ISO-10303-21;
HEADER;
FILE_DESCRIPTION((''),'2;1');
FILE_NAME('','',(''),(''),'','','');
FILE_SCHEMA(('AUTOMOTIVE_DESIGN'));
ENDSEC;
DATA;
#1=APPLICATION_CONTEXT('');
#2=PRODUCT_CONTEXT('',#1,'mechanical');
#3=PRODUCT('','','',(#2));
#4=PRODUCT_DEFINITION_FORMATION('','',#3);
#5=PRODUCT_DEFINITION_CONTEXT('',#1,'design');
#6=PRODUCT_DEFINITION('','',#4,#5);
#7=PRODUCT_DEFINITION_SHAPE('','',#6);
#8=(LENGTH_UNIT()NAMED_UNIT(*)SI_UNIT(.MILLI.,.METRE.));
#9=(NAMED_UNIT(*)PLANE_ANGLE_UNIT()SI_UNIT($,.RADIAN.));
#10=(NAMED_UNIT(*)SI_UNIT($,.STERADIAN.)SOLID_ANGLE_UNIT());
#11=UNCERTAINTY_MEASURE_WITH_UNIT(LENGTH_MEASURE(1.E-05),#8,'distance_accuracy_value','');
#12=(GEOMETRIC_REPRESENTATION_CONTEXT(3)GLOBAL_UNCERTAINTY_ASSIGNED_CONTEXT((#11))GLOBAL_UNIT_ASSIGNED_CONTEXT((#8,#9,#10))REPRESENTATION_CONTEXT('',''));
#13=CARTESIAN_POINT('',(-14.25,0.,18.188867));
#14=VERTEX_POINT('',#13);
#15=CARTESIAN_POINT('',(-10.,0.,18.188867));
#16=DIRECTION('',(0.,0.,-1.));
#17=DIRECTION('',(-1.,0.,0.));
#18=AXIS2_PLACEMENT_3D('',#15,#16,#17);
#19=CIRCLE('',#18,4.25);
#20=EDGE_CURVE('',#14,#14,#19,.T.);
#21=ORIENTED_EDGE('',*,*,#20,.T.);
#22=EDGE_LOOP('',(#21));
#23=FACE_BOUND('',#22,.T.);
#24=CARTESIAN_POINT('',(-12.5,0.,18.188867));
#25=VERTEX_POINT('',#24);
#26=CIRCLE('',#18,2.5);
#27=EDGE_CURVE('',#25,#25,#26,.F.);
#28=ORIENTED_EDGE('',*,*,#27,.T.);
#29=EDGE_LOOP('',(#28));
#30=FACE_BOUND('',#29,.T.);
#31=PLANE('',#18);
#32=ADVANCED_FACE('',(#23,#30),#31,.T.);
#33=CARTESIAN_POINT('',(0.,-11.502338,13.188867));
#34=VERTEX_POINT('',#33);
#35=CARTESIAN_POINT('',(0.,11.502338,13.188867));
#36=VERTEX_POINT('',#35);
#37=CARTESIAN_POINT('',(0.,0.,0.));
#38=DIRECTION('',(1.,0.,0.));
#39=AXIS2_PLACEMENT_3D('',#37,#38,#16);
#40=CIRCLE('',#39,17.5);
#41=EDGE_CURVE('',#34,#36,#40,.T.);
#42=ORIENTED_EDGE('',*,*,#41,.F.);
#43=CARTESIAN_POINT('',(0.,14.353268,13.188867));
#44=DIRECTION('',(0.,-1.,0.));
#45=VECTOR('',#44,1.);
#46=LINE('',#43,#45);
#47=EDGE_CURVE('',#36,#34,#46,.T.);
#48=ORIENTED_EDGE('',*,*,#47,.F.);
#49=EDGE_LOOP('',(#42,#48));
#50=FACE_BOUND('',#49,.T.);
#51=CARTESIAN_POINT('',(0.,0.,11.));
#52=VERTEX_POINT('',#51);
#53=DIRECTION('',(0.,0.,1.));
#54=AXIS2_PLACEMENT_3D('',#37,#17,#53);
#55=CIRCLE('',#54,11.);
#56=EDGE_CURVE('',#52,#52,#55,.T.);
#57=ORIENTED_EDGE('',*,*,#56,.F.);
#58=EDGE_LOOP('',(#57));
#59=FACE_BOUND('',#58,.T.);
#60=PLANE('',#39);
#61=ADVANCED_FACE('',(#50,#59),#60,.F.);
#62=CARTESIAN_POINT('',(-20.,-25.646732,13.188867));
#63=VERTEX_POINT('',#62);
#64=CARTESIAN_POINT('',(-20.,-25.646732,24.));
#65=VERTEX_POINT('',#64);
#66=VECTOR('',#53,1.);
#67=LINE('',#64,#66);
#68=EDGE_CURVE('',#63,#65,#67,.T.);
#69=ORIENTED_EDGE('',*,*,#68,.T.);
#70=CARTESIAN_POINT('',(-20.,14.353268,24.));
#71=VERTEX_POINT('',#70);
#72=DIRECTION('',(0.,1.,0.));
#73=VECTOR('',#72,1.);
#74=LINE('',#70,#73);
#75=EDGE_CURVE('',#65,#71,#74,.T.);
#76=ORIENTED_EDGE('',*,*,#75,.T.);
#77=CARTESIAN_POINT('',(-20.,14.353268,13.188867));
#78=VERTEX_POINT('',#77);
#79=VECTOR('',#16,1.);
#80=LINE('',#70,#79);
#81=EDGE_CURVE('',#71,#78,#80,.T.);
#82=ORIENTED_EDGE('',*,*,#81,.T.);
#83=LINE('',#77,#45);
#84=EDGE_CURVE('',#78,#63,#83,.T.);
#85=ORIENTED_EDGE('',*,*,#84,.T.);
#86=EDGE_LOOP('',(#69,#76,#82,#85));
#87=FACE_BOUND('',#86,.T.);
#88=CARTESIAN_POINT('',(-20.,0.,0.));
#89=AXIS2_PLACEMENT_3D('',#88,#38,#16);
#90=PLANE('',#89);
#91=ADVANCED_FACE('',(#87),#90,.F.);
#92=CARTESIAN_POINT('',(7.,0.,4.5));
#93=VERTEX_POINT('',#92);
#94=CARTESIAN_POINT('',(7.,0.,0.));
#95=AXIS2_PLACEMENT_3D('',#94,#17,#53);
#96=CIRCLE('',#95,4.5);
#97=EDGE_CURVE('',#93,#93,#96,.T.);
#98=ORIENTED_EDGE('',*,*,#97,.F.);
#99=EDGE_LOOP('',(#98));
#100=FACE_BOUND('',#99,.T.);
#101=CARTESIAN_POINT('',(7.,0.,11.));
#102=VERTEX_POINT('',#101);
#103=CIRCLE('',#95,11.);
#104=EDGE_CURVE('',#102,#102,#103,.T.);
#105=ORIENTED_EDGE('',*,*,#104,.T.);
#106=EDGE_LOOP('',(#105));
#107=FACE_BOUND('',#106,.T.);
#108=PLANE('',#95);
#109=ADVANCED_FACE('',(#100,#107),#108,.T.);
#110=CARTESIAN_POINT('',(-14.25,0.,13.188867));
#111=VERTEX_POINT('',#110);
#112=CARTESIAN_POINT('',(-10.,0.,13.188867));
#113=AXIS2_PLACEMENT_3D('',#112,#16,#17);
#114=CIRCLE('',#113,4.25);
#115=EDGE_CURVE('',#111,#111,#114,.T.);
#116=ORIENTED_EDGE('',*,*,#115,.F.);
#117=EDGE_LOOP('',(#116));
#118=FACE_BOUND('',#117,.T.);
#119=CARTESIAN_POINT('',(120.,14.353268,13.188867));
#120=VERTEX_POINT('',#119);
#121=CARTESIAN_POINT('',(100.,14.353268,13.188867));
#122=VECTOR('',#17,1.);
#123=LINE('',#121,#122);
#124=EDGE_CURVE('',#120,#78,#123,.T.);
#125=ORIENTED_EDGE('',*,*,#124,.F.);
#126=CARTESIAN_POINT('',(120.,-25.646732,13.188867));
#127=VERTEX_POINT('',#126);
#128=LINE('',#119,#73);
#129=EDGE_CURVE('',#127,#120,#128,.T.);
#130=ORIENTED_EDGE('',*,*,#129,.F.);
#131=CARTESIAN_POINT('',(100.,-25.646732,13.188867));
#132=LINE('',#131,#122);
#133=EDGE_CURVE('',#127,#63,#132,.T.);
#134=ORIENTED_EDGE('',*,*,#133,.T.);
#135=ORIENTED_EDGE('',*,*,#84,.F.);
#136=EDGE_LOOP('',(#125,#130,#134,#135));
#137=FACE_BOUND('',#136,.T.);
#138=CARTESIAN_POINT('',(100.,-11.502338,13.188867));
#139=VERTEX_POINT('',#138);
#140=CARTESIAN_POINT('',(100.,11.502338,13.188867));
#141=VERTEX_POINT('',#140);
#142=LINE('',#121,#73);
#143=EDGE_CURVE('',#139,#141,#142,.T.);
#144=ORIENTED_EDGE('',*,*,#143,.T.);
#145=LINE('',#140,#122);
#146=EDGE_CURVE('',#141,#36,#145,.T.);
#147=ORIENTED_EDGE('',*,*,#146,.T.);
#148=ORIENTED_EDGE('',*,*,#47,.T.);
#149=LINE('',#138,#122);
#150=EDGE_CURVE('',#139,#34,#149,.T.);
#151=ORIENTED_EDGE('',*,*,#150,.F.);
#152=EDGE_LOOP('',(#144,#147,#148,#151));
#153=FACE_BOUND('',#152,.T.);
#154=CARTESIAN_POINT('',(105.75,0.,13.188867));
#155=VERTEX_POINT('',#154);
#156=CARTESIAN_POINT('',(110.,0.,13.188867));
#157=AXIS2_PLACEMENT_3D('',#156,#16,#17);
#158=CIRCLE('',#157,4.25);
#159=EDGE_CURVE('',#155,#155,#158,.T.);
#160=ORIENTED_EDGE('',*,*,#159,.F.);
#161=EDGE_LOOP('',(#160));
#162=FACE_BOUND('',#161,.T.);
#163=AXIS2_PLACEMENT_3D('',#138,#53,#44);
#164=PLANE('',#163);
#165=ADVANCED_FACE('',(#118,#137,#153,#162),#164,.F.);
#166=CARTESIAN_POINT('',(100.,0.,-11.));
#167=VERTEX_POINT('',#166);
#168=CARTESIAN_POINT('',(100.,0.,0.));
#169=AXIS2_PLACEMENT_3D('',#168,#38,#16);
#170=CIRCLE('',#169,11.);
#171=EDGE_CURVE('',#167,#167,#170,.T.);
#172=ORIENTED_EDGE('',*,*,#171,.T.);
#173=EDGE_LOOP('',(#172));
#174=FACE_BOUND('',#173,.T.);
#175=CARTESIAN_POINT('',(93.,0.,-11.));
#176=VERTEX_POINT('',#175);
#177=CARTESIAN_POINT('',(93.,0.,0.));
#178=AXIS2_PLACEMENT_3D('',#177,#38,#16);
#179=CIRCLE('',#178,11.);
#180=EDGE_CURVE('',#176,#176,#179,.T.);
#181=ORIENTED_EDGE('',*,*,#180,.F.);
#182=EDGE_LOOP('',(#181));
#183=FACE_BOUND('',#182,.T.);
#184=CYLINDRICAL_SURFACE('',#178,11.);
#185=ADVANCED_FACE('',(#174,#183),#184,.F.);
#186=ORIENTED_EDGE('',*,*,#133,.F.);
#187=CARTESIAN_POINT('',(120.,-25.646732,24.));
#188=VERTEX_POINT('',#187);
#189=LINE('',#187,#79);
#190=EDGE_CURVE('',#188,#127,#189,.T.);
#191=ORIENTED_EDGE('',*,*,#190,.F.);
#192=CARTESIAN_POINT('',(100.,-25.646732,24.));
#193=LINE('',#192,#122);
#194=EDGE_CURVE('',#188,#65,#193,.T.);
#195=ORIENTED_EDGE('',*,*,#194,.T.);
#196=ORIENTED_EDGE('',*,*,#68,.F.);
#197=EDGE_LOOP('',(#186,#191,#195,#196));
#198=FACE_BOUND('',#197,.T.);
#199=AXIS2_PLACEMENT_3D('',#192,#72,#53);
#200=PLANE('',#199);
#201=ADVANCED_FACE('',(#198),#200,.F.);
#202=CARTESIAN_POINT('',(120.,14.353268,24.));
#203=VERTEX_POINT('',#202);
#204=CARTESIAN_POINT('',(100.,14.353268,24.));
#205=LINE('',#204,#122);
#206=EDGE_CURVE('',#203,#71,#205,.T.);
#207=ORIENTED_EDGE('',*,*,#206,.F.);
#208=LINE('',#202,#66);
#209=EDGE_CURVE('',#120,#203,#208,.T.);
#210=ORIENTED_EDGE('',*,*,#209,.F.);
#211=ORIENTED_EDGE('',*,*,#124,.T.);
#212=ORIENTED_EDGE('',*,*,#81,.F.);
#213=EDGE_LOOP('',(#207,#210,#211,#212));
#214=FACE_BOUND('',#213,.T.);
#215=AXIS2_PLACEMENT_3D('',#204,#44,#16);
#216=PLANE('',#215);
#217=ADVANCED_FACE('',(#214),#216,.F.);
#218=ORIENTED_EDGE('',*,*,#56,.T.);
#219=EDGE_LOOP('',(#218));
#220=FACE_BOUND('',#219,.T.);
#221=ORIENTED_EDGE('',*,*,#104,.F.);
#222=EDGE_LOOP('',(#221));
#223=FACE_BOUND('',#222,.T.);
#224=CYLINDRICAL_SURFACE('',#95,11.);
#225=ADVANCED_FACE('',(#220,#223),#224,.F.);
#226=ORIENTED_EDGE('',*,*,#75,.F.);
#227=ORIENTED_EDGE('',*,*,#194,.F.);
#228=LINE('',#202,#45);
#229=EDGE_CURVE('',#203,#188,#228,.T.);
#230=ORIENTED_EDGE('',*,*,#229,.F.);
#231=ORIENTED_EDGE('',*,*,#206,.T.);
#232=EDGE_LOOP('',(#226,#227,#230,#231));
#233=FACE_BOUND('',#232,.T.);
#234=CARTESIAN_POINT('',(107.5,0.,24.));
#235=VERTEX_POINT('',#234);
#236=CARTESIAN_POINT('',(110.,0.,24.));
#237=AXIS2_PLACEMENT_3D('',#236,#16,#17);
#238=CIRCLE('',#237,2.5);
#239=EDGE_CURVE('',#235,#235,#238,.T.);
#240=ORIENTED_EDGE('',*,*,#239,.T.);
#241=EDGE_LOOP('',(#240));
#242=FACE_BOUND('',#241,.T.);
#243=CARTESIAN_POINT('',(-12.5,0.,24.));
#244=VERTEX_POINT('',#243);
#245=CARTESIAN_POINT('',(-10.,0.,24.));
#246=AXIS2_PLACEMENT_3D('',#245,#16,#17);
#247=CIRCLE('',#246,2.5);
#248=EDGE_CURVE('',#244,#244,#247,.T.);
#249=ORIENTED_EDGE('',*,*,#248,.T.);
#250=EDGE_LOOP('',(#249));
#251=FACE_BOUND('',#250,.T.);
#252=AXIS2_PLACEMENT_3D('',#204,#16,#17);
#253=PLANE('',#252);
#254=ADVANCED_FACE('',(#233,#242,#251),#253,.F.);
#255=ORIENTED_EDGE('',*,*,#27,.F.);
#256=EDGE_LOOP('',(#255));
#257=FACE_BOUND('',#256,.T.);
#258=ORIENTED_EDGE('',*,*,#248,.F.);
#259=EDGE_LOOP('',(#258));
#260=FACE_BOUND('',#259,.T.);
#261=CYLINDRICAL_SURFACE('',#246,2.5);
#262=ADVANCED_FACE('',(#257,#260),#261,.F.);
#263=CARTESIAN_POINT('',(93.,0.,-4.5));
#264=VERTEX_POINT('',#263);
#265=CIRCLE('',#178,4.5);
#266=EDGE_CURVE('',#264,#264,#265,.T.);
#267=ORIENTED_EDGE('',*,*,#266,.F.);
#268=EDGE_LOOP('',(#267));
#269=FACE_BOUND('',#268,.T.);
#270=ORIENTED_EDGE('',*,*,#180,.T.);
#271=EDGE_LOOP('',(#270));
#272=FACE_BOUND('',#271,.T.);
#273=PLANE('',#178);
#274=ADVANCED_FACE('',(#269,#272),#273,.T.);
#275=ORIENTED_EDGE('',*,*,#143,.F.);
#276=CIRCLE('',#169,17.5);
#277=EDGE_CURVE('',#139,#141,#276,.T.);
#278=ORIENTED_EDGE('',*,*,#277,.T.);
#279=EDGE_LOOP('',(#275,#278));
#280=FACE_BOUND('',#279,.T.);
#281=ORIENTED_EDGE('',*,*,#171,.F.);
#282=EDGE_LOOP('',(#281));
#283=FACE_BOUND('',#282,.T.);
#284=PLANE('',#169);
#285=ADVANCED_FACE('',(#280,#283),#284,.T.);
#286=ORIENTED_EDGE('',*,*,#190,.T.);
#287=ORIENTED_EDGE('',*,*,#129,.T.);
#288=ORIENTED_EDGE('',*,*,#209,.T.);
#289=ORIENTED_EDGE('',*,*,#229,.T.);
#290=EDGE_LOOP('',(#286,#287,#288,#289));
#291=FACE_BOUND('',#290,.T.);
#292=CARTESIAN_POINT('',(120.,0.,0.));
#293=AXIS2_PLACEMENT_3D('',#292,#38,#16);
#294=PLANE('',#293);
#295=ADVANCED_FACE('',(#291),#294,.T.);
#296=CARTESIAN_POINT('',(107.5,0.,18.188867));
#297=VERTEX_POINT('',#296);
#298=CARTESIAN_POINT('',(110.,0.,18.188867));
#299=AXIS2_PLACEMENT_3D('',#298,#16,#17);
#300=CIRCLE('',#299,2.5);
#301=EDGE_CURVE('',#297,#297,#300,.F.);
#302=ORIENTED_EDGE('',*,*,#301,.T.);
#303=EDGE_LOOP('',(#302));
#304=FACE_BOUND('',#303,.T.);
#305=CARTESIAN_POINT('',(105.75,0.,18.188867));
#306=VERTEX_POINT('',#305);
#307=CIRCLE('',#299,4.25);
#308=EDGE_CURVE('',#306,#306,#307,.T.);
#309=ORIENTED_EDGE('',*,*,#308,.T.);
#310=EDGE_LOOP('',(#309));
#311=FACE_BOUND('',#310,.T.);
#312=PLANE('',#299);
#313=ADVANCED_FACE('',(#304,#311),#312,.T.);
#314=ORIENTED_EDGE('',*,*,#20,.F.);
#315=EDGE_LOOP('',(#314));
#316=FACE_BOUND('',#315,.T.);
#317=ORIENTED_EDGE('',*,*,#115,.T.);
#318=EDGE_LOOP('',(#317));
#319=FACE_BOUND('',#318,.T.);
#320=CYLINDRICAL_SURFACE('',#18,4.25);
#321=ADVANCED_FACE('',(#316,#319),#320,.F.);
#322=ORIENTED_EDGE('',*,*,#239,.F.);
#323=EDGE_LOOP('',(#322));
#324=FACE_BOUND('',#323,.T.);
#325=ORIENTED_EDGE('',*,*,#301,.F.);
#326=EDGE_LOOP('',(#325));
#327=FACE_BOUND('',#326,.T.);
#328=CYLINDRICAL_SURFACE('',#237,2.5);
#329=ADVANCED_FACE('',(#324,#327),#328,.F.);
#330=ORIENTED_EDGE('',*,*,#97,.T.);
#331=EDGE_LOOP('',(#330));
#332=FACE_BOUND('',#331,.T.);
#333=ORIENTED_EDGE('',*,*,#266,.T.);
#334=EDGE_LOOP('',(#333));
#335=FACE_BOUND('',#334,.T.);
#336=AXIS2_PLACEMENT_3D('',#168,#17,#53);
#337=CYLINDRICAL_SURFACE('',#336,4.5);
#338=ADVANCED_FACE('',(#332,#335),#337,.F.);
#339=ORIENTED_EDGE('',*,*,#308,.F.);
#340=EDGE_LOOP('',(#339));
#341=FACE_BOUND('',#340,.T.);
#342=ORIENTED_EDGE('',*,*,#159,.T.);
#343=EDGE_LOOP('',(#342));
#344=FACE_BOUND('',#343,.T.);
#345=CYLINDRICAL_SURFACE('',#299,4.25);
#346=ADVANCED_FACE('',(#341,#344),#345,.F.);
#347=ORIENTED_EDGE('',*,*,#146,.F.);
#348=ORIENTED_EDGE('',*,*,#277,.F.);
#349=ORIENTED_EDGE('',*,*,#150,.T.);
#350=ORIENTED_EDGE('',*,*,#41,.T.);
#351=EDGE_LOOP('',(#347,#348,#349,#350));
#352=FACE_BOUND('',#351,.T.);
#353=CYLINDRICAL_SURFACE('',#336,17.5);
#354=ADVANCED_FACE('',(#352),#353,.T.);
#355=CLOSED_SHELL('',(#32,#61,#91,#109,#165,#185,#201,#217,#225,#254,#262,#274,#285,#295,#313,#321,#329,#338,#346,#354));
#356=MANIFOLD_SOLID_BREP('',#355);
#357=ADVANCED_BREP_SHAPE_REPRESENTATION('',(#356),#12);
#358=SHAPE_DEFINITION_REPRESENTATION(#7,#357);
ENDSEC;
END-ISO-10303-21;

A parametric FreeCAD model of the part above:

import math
import FreeCAD as App
import Part
import Sketcher
from FreeCAD import Vector
Q = App.Units.Quantity

doc = App.newDocument("Part")
body = doc.addObject("PartDesign::Body", "Body")

sketch1 = doc.addObject("Sketcher::SketchObject", "Sketch")
body.addObject(sketch1)
sketch1.AttachmentSupport = (doc.YZ_Plane, [""])
sketch1.MapMode = "FlatFace"
sketch1.addGeometry([
    Part.LineSegment(Vector(14.4, 13.2, 0), Vector(14.4, 24, 0)),
    Part.LineSegment(Vector(14.4, 24, 0), Vector(-25.6, 24, 0)),
    Part.LineSegment(Vector(-25.6, 24, 0), Vector(-25.6, 13.2, 0)),
    Part.LineSegment(Vector(-25.6, 13.2, 0), Vector(-11.5, 13.2, 0)),
    Part.ArcOfCircle(Part.Circle(Vector(0, 0, 0), Vector(0, 0, 1), 17.5), math.radians(131), math.radians(409)),
    Part.LineSegment(Vector(11.5, 13.2, 0), Vector(14.4, 13.2, 0)),
    Part.Circle(Vector(0, 0, 0), Vector(0, 0, 1), 4.5),
], False)
sketch1.addConstraint([
    Sketcher.Constraint("Coincident", 0, 2, 1, 1),
    Sketcher.Constraint("Coincident", 1, 2, 2, 1),
    Sketcher.Constraint("Coincident", 2, 2, 3, 1),
    Sketcher.Constraint("Coincident", 3, 2, 4, 1),
    Sketcher.Constraint("Coincident", 4, 2, 5, 1),
    Sketcher.Constraint("Coincident", 5, 2, 0, 1),
    Sketcher.Constraint("Vertical", 0),
    Sketcher.Constraint("Horizontal", 1),
    Sketcher.Constraint("Vertical", 2),
    Sketcher.Constraint("Horizontal", 3),
    Sketcher.Constraint("Horizontal", 5),
    Sketcher.Constraint("Coincident", 4, 3, -1, 1),
    Sketcher.Constraint("Coincident", 6, 3, -1, 1),
    Sketcher.Constraint("Horizontal", 3, 2, 4, 2),
    Sketcher.Constraint("Diameter", 6, Q("9 mm")),
    Sketcher.Constraint("Radius", 4, Q("17.5 mm")),
    Sketcher.Constraint("DistanceX", 1, 2, 1, 1, Q("40 mm")),
    Sketcher.Constraint("DistanceY", -1, 1, 0, 2, Q("24 mm")),
    Sketcher.Constraint("DistanceX", 5, 1, 5, 2, Q("2.85093 mm")),
    Sketcher.Constraint("DistanceX", 3, 1, 3, 2, Q("14.144394 mm")),
])
pad1 = doc.addObject("PartDesign::Pad", "Pad")
body.addObject(pad1)
pad1.Profile = sketch1
pad1.Length = 100

sketch2 = doc.addObject("Sketcher::SketchObject", "Sketch001")
body.addObject(sketch2)
sketch2.AttachmentSupport = (doc.YZ_Plane, [""])
sketch2.MapMode = "FlatFace"
sketch2.addGeometry([
    Part.LineSegment(Vector(14, 13, 0), Vector(-26, 13, 0)),
    Part.LineSegment(Vector(-26, 13, 0), Vector(-26, 24, 0)),
    Part.LineSegment(Vector(-26, 24, 0), Vector(14, 24, 0)),
    Part.LineSegment(Vector(14, 24, 0), Vector(14, 13, 0)),
], False)
sketch2.addConstraint([
    Sketcher.Constraint("Coincident", 0, 2, 1, 1),
    Sketcher.Constraint("Coincident", 1, 2, 2, 1),
    Sketcher.Constraint("Coincident", 2, 2, 3, 1),
    Sketcher.Constraint("Coincident", 3, 2, 0, 1),
    Sketcher.Constraint("Horizontal", 0),
    Sketcher.Constraint("Vertical", 1),
    Sketcher.Constraint("Horizontal", 2),
    Sketcher.Constraint("Vertical", 3),
    Sketcher.Constraint("DistanceX", 0, 2, 0, 1, Q("40 mm")),
    Sketcher.Constraint("DistanceY", -1, 1, 1, 2, Q("24 mm")),
    Sketcher.Constraint("DistanceY", 1, 1, 1, 2, Q("10.811133 mm")),
    Sketcher.Constraint("DistanceX", 0, 2, -1, 1, Q("25.646732 mm")),
])
pad2 = doc.addObject("PartDesign::Pad", "Pad001")
body.addObject(pad2)
pad2.Profile = sketch2
pad2.Length = 20
pad2.Reversed = True

sketch3 = doc.addObject("Sketcher::SketchObject", "Sketch002")
body.addObject(sketch3)
sketch3.AttachmentSupport = (doc.YZ_Plane, [""])
sketch3.MapMode = "FlatFace"
sketch3.AttachmentOffset = App.Placement(Vector(0, 0, 100), App.Rotation())
sketch3.addGeometry([
    Part.LineSegment(Vector(14, 24, 0), Vector(-26, 24, 0)),
    Part.LineSegment(Vector(-26, 24, 0), Vector(-26, 13, 0)),
    Part.LineSegment(Vector(-26, 13, 0), Vector(14, 13, 0)),
    Part.LineSegment(Vector(14, 13, 0), Vector(14, 24, 0)),
], False)
sketch3.addConstraint([
    Sketcher.Constraint("Coincident", 0, 2, 1, 1),
    Sketcher.Constraint("Coincident", 1, 2, 2, 1),
    Sketcher.Constraint("Coincident", 2, 2, 3, 1),
    Sketcher.Constraint("Coincident", 3, 2, 0, 1),
    Sketcher.Constraint("Horizontal", 0),
    Sketcher.Constraint("Vertical", 1),
    Sketcher.Constraint("Horizontal", 2),
    Sketcher.Constraint("Vertical", 3),
    Sketcher.Constraint("DistanceX", 0, 2, 0, 1, Q("40 mm")),
    Sketcher.Constraint("DistanceY", -1, 1, 0, 2, Q("24 mm")),
    Sketcher.Constraint("DistanceY", 1, 2, 1, 1, Q("10.811133 mm")),
    Sketcher.Constraint("DistanceX", 0, 2, -1, 1, Q("25.646732 mm")),
])
pad3 = doc.addObject("PartDesign::Pad", "Pad002")
body.addObject(pad3)
pad3.Profile = sketch3
pad3.Length = 20

sketch4 = doc.addObject("Sketcher::SketchObject", "Sketch003")
body.addObject(sketch4)
sketch4.AttachmentSupport = (doc.XY_Plane, [""])
sketch4.MapMode = "FlatFace"
sketch4.AttachmentOffset = App.Placement(Vector(0, 0, 13.188867), App.Rotation())
sketch4.addGeometry([
    Part.Circle(Vector(110, 0, 0), Vector(0, 0, 1), 2.5),
    Part.Circle(Vector(-10, 0, 0), Vector(0, 0, 1), 2.5),
], False)
sketch4.addConstraint([
    Sketcher.Constraint("Equal", 0, 1),
    Sketcher.Constraint("PointOnObject", 0, 3, -1),
    Sketcher.Constraint("PointOnObject", 1, 3, -1),
    Sketcher.Constraint("Diameter", 0, Q("5 mm")),
    Sketcher.Constraint("DistanceX", -1, 1, 0, 3, Q("110 mm")),
    Sketcher.Constraint("DistanceX", 1, 3, -1, 1, Q("10 mm")),
])
pocket1 = doc.addObject("PartDesign::Pocket", "Pocket")
body.addObject(pocket1)
pocket1.Profile = sketch4
pocket1.Type = "ThroughAll"
pocket1.Reversed = True

sketch5 = doc.addObject("Sketcher::SketchObject", "Sketch004")
body.addObject(sketch5)
sketch5.AttachmentSupport = (doc.XY_Plane, [""])
sketch5.MapMode = "FlatFace"
sketch5.AttachmentOffset = App.Placement(Vector(0, 0, 13.188867), App.Rotation())
sketch5.addGeometry([
    Part.Circle(Vector(110, 0, 0), Vector(0, 0, 1), 4.2),
    Part.Circle(Vector(-10, 0, 0), Vector(0, 0, 1), 4.2),
], False)
sketch5.addConstraint([
    Sketcher.Constraint("Equal", 0, 1),
    Sketcher.Constraint("PointOnObject", 0, 3, -1),
    Sketcher.Constraint("PointOnObject", 1, 3, -1),
    Sketcher.Constraint("Diameter", 0, Q("8.5 mm")),
    Sketcher.Constraint("DistanceX", -1, 1, 0, 3, Q("110 mm")),
    Sketcher.Constraint("DistanceX", 1, 3, -1, 1, Q("10 mm")),
])
pocket2 = doc.addObject("PartDesign::Pocket", "Pocket001")
body.addObject(pocket2)
pocket2.Profile = sketch5
pocket2.Length = 5
pocket2.Reversed = True

sketch6 = doc.addObject("Sketcher::SketchObject", "Sketch005")
body.addObject(sketch6)
sketch6.AttachmentSupport = (doc.YZ_Plane, [""])
sketch6.MapMode = "FlatFace"
sketch6.AttachmentOffset = App.Placement(Vector(0, 0, 100), App.Rotation())
sketch6.addGeometry(Part.Circle(Vector(0, 0, 0), Vector(0, 0, 1), 11), False)
sketch6.addConstraint([
    Sketcher.Constraint("Coincident", 0, 3, -1, 1),
    Sketcher.Constraint("Diameter", 0, Q("22 mm")),
])
pocket3 = doc.addObject("PartDesign::Pocket", "Pocket002")
body.addObject(pocket3)
pocket3.Profile = sketch6
pocket3.Length = 7

sketch7 = doc.addObject("Sketcher::SketchObject", "Sketch006")
body.addObject(sketch7)
sketch7.AttachmentSupport = (doc.YZ_Plane, [""])
sketch7.MapMode = "FlatFace"
sketch7.addGeometry(Part.Circle(Vector(0, 0, 0), Vector(0, 0, 1), 11), False)
sketch7.addConstraint([
    Sketcher.Constraint("Coincident", 0, 3, -1, 1),
    Sketcher.Constraint("Diameter", 0, Q("22 mm")),
])
pocket4 = doc.addObject("PartDesign::Pocket", "Pocket003")
body.addObject(pocket4)
pocket4.Profile = sketch7
pocket4.Length = 7
pocket4.Reversed = True

doc.recompute()
